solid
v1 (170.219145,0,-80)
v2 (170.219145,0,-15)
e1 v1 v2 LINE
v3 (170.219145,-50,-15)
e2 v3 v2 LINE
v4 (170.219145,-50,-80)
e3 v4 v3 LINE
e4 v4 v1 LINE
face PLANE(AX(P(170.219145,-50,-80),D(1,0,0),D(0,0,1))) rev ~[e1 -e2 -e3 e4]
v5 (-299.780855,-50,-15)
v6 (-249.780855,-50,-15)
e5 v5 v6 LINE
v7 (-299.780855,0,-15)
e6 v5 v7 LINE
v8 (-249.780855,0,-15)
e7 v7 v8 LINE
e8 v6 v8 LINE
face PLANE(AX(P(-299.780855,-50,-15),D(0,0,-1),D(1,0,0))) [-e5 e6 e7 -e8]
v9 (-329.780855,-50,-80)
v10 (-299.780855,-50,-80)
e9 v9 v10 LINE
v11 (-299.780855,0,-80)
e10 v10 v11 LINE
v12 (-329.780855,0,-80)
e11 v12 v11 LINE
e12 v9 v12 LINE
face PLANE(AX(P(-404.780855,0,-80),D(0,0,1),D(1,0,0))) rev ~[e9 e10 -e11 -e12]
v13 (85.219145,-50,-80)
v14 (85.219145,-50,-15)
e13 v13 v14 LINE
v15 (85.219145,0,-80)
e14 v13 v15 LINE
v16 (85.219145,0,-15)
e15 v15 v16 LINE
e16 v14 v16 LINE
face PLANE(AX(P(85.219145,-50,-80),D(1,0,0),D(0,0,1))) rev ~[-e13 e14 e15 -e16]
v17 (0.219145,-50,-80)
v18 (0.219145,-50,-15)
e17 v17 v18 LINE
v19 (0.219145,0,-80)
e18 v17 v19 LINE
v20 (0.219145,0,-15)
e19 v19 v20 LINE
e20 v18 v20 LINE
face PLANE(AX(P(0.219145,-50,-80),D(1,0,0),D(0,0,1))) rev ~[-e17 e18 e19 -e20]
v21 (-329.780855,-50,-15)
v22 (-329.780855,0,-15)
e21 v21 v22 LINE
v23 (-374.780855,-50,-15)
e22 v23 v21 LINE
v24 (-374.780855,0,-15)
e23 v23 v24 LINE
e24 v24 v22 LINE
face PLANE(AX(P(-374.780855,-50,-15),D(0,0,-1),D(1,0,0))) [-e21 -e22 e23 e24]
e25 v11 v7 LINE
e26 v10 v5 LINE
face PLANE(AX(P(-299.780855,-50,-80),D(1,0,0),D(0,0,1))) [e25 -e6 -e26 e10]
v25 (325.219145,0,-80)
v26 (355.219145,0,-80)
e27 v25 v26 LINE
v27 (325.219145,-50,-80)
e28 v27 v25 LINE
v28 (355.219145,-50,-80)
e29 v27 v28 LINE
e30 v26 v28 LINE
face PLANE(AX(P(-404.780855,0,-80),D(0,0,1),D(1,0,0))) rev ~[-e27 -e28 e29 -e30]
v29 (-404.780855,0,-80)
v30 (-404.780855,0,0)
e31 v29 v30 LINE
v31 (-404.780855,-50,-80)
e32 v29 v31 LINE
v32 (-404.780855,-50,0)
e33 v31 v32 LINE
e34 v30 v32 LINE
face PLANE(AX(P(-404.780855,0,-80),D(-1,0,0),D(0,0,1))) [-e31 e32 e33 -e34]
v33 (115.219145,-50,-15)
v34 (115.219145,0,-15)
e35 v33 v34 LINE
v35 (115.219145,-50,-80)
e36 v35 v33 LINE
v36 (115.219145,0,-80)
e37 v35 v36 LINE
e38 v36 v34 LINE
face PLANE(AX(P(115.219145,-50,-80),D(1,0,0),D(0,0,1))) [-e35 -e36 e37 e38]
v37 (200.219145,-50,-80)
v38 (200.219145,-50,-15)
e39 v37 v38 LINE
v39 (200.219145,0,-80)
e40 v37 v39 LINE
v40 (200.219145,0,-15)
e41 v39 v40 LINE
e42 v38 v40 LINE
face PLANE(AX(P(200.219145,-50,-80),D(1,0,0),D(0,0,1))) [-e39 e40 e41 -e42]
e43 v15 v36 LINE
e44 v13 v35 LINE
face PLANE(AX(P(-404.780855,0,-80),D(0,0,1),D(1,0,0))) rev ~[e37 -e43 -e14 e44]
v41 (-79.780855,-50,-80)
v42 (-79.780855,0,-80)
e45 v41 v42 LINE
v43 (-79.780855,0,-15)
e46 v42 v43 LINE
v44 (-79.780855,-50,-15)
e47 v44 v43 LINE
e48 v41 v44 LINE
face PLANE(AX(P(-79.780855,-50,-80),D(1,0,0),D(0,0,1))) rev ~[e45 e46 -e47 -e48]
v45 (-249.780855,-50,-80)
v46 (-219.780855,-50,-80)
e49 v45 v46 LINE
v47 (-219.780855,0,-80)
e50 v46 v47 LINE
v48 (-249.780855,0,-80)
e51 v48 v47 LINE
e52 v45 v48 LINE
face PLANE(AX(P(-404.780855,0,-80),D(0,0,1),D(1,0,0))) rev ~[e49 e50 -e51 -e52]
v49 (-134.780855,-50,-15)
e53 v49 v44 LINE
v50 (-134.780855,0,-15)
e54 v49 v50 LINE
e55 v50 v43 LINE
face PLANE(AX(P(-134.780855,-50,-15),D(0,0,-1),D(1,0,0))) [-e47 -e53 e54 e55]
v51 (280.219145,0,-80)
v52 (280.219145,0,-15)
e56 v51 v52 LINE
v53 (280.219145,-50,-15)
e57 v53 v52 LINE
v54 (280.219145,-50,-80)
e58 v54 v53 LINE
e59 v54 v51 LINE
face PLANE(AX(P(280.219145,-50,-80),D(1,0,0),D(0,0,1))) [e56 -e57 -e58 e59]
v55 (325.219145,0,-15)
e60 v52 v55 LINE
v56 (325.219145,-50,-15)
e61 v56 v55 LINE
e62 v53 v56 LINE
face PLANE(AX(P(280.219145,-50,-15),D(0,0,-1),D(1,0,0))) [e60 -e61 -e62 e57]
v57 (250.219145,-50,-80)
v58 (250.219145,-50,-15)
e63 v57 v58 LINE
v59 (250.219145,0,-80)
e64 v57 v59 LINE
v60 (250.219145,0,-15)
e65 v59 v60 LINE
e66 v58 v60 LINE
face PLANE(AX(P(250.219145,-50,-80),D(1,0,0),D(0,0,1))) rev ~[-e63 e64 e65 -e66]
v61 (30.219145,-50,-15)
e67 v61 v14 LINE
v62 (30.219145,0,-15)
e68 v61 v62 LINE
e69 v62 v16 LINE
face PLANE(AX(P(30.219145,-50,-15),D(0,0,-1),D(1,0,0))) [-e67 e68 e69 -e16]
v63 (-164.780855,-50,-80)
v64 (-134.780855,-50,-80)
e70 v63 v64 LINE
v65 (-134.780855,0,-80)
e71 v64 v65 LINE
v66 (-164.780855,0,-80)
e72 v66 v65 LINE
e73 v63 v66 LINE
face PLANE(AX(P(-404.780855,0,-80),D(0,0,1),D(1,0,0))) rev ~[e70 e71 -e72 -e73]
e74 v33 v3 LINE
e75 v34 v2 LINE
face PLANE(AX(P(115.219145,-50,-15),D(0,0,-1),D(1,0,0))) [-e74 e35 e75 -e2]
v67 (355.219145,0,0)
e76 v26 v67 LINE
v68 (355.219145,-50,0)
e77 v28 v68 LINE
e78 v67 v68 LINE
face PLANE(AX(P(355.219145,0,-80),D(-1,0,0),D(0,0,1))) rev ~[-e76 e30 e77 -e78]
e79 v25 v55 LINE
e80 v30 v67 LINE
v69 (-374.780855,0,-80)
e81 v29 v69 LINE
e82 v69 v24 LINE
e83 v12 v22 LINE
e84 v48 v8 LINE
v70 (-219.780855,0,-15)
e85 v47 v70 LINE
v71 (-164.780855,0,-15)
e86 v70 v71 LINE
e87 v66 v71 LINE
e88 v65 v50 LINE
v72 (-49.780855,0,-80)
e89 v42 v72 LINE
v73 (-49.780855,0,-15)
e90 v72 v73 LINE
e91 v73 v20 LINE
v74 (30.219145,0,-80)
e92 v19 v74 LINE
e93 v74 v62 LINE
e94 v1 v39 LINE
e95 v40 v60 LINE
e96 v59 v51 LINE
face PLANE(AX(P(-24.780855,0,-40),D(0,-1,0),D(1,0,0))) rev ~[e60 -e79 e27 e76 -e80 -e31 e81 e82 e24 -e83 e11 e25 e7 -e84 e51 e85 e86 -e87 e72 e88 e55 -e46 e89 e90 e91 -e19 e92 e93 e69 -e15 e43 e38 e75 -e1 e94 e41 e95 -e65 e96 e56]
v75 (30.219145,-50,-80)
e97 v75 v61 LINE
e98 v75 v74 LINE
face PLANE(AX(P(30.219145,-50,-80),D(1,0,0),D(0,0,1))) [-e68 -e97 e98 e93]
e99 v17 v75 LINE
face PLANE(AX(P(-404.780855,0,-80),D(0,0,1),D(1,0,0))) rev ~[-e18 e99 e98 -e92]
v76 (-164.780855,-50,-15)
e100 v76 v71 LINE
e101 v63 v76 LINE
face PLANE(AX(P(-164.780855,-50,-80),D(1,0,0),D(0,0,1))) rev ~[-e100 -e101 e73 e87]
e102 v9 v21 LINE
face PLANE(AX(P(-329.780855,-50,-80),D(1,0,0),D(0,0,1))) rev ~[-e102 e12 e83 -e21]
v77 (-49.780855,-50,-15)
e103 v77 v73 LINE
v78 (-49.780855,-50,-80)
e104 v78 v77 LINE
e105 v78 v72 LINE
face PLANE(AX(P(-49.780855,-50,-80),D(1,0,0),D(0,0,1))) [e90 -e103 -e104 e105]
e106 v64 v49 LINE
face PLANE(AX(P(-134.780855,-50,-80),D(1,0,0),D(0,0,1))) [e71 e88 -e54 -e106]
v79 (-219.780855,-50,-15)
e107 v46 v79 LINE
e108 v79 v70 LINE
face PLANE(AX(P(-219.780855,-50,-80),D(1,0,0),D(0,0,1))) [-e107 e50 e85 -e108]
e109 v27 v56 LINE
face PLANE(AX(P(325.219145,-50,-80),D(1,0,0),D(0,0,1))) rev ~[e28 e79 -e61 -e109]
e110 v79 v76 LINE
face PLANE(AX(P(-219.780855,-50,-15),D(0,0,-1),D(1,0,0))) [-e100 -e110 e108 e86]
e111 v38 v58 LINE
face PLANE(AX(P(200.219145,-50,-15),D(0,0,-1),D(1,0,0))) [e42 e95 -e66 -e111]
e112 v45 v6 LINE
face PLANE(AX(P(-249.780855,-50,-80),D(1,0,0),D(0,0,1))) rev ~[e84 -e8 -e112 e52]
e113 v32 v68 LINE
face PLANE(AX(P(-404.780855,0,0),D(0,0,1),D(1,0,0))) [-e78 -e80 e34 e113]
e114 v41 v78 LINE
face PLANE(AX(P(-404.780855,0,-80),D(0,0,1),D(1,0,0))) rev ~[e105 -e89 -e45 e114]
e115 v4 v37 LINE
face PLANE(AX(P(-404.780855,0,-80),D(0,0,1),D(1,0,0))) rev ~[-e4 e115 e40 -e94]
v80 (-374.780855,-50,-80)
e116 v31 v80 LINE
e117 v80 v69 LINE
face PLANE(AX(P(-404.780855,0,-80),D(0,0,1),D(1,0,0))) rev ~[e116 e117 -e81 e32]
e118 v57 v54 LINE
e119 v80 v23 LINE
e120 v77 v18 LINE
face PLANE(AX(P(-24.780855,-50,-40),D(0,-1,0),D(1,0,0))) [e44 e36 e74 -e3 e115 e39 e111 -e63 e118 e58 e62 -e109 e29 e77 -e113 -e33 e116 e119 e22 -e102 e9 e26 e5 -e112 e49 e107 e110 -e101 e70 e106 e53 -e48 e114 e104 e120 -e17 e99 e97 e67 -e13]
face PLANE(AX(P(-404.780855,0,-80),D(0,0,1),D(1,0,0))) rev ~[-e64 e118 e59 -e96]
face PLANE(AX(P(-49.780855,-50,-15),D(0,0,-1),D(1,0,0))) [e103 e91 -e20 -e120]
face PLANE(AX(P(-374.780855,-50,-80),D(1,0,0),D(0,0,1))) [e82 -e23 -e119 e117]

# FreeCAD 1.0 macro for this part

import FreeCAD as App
import Part
import Sketcher

doc = App.newDocument("Part")
body = doc.addObject("PartDesign::Body", "Body")

sketch1 = body.newObject("Sketcher::SketchObject", "Sketch")
sketch1.AttachmentSupport = (doc.getObject("XZ_Plane"), [""])
sketch1.MapMode = "FlatFace"
sketch1.addGeometry([
    Part.LineSegment(App.Vector(-405, 0, 0), App.Vector(-405, -80, 0)),
    Part.LineSegment(App.Vector(-405, -80, 0), App.Vector(355, -80, 0)),
    Part.LineSegment(App.Vector(355, -80, 0), App.Vector(355, 0, 0)),
    Part.LineSegment(App.Vector(355, 0, 0), App.Vector(-405, 0, 0)),
], False)
sketch1.addConstraint([
    Sketcher.Constraint("Coincident", 0, 2, 1, 1),
    Sketcher.Constraint("Coincident", 1, 2, 2, 1),
    Sketcher.Constraint("Coincident", 2, 2, 3, 1),
    Sketcher.Constraint("Coincident", 3, 2, 0, 1),
    Sketcher.Constraint("Vertical", 0),
    Sketcher.Constraint("Horizontal", 1),
    Sketcher.Constraint("Vertical", 2),
    Sketcher.Constraint("Horizontal", 3),
    Sketcher.Constraint("PointOnObject", 2, 2, -1),
    Sketcher.Constraint("DistanceX", 1, 1, 1, 2, 760.0),
    Sketcher.Constraint("DistanceY", 0, 2, 0, 1, 80.0),
    Sketcher.Constraint("DistanceX", 0, 2, -1, 1, 404.780855),
])
pad1 = body.newObject("PartDesign::Pad", "Pad")
pad1.Profile = sketch1
pad1.Length = 50

sketch2 = body.newObject("Sketcher::SketchObject", "Sketch001")
sketch2.AttachmentSupport = (doc.getObject("XZ_Plane"), [""])
sketch2.MapMode = "FlatFace"
sketch2.AttachmentOffset = App.Placement(App.Vector(0, 0, 50), App.Rotation())
sketch2.addGeometry([
    Part.LineSegment(App.Vector(-375, -15, 0), App.Vector(-375, -80, 0)),
    Part.LineSegment(App.Vector(-375, -80, 0), App.Vector(-330, -80, 0)),
    Part.LineSegment(App.Vector(-330, -80, 0), App.Vector(-330, -15, 0)),
    Part.LineSegment(App.Vector(-330, -15, 0), App.Vector(-375, -15, 0)),
    Part.LineSegment(App.Vector(-300, -15, 0), App.Vector(-300, -80, 0)),
    Part.LineSegment(App.Vector(-300, -80, 0), App.Vector(-250, -80, 0)),
    Part.LineSegment(App.Vector(-250, -80, 0), App.Vector(-250, -15, 0)),
    Part.LineSegment(App.Vector(-250, -15, 0), App.Vector(-300, -15, 0)),
    Part.LineSegment(App.Vector(-220, -15, 0), App.Vector(-220, -80, 0)),
    Part.LineSegment(App.Vector(-220, -80, 0), App.Vector(-165, -80, 0)),
    Part.LineSegment(App.Vector(-165, -80, 0), App.Vector(-165, -15, 0)),
    Part.LineSegment(App.Vector(-165, -15, 0), App.Vector(-220, -15, 0)),
    Part.LineSegment(App.Vector(-135, -15, 0), App.Vector(-135, -80, 0)),
    Part.LineSegment(App.Vector(-135, -80, 0), App.Vector(-80, -80, 0)),
    Part.LineSegment(App.Vector(-80, -80, 0), App.Vector(-80, -15, 0)),
    Part.LineSegment(App.Vector(-80, -15, 0), App.Vector(-135, -15, 0)),
    Part.LineSegment(App.Vector(-50, -15, 0), App.Vector(-50, -80, 0)),
    Part.LineSegment(App.Vector(-50, -80, 0), App.Vector(0, -80, 0)),
    Part.LineSegment(App.Vector(0, -80, 0), App.Vector(0, -15, 0)),
    Part.LineSegment(App.Vector(0, -15, 0), App.Vector(-50, -15, 0)),
    Part.LineSegment(App.Vector(30, -15, 0), App.Vector(30, -80, 0)),
    Part.LineSegment(App.Vector(30, -80, 0), App.Vector(85, -80, 0)),
    Part.LineSegment(App.Vector(85, -80, 0), App.Vector(85, -15, 0)),
    Part.LineSegment(App.Vector(85, -15, 0), App.Vector(30, -15, 0)),
    Part.LineSegment(App.Vector(115, -15, 0), App.Vector(115, -80, 0)),
    Part.LineSegment(App.Vector(115, -80, 0), App.Vector(170, -80, 0)),
    Part.LineSegment(App.Vector(170, -80, 0), App.Vector(170, -15, 0)),
    Part.LineSegment(App.Vector(170, -15, 0), App.Vector(115, -15, 0)),
    Part.LineSegment(App.Vector(200, -15, 0), App.Vector(200, -80, 0)),
    Part.LineSegment(App.Vector(200, -80, 0), App.Vector(250, -80, 0)),
    Part.LineSegment(App.Vector(250, -80, 0), App.Vector(250, -15, 0)),
    Part.LineSegment(App.Vector(250, -15, 0), App.Vector(200, -15, 0)),
    Part.LineSegment(App.Vector(280, -15, 0), App.Vector(280, -80, 0)),
    Part.LineSegment(App.Vector(280, -80, 0), App.Vector(325, -80, 0)),
    Part.LineSegment(App.Vector(325, -80, 0), App.Vector(325, -15, 0)),
    Part.LineSegment(App.Vector(325, -15, 0), App.Vector(280, -15, 0)),
], False)
sketch2.addConstraint([
    Sketcher.Constraint("Coincident", 0, 2, 1, 1),
    Sketcher.Constraint("Coincident", 1, 2, 2, 1),
    Sketcher.Constraint("Coincident", 2, 2, 3, 1),
    Sketcher.Constraint("Coincident", 3, 2, 0, 1),
    Sketcher.Constraint("Coincident", 4, 2, 5, 1),
    Sketcher.Constraint("Coincident", 5, 2, 6, 1),
    Sketcher.Constraint("Coincident", 6, 2, 7, 1),
    Sketcher.Constraint("Coincident", 7, 2, 4, 1),
    Sketcher.Constraint("Coincident", 8, 2, 9, 1),
    Sketcher.Constraint("Coincident", 9, 2, 10, 1),
    Sketcher.Constraint("Coincident", 10, 2, 11, 1),
    Sketcher.Constraint("Coincident", 11, 2, 8, 1),
    Sketcher.Constraint("Coincident", 12, 2, 13, 1),
    Sketcher.Constraint("Coincident", 13, 2, 14, 1),
    Sketcher.Constraint("Coincident", 14, 2, 15, 1),
    Sketcher.Constraint("Coincident", 15, 2, 12, 1),
    Sketcher.Constraint("Coincident", 16, 2, 17, 1),
    Sketcher.Constraint("Coincident", 17, 2, 18, 1),
    Sketcher.Constraint("Coincident", 18, 2, 19, 1),
    Sketcher.Constraint("Coincident", 19, 2, 16, 1),
    Sketcher.Constraint("Coincident", 20, 2, 21, 1),
    Sketcher.Constraint("Coincident", 21, 2, 22, 1),
    Sketcher.Constraint("Coincident", 22, 2, 23, 1),
    Sketcher.Constraint("Coincident", 23, 2, 20, 1),
    Sketcher.Constraint("Coincident", 24, 2, 25, 1),
    Sketcher.Constraint("Coincident", 25, 2, 26, 1),
    Sketcher.Constraint("Coincident", 26, 2, 27, 1),
    Sketcher.Constraint("Coincident", 27, 2, 24, 1),
    Sketcher.Constraint("Coincident", 28, 2, 29, 1),
    Sketcher.Constraint("Coincident", 29, 2, 30, 1),
    Sketcher.Constraint("Coincident", 30, 2, 31, 1),
    Sketcher.Constraint("Coincident", 31, 2, 28, 1),
    Sketcher.Constraint("Coincident", 32, 2, 33, 1),
    Sketcher.Constraint("Coincident", 33, 2, 34, 1),
    Sketcher.Constraint("Coincident", 34, 2, 35, 1),
    Sketcher.Constraint("Coincident", 35, 2, 32, 1),
    Sketcher.Constraint("Vertical", 0),
    Sketcher.Constraint("Horizontal", 1),
    Sketcher.Constraint("Vertical", 2),
    Sketcher.Constraint("Horizontal", 3),
    Sketcher.Constraint("Vertical", 4),
    Sketcher.Constraint("Horizontal", 5),
    Sketcher.Constraint("Vertical", 6),
    Sketcher.Constraint("Horizontal", 7),
    Sketcher.Constraint("Vertical", 8),
    Sketcher.Constraint("Horizontal", 9),
    Sketcher.Constraint("Vertical", 10),
    Sketcher.Constraint("Horizontal", 11),
    Sketcher.Constraint("Vertical", 12),
    Sketcher.Constraint("Horizontal", 13),
    Sketcher.Constraint("Vertical", 14),
    Sketcher.Constraint("Horizontal", 15),
    Sketcher.Constraint("Vertical", 16),
    Sketcher.Constraint("Horizontal", 17),
    Sketcher.Constraint("Vertical", 18),
    Sketcher.Constraint("Horizontal", 19),
    Sketcher.Constraint("Vertical", 20),
    Sketcher.Constraint("Horizontal", 21),
    Sketcher.Constraint("Vertical", 22),
    Sketcher.Constraint("Horizontal", 23),
    Sketcher.Constraint("Vertical", 24),
    Sketcher.Constraint("Horizontal", 25),
    Sketcher.Constraint("Vertical", 26),
    Sketcher.Constraint("Horizontal", 27),
    Sketcher.Constraint("Vertical", 28),
    Sketcher.Constraint("Horizontal", 29),
    Sketcher.Constraint("Vertical", 30),
    Sketcher.Constraint("Horizontal", 31),
    Sketcher.Constraint("Vertical", 32),
    Sketcher.Constraint("Horizontal", 33),
    Sketcher.Constraint("Vertical", 34),
    Sketcher.Constraint("Horizontal", 35),
    Sketcher.Constraint("Horizontal", 1, 2, 4, 2),
    Sketcher.Constraint("Horizontal", 3, 2, 6, 2),
    Sketcher.Constraint("Horizontal", 5, 2, 8, 2),
    Sketcher.Constraint("Horizontal", 7, 2, 10, 2),
    Sketcher.Constraint("Horizontal", 9, 2, 12, 2),
    Sketcher.Constraint("Horizontal", 11, 2, 14, 2),
    Sketcher.Constraint("Horizontal", 13, 2, 16, 2),
    Sketcher.Constraint("Horizontal", 15, 2, 18, 2),
    Sketcher.Constraint("Horizontal", 17, 2, 20, 2),
    Sketcher.Constraint("Horizontal", 19, 2, 22, 2),
    Sketcher.Constraint("Horizontal", 21, 2, 24, 2),
    Sketcher.Constraint("Horizontal", 23, 2, 26, 2),
    Sketcher.Constraint("Horizontal", 25, 2, 28, 2),
    Sketcher.Constraint("Horizontal", 27, 2, 30, 2),
    Sketcher.Constraint("Horizontal", 29, 2, 32, 2),
    Sketcher.Constraint("Horizontal", 31, 2, 34, 2),
    Sketcher.Constraint("Equal", 11, 13),
    Sketcher.Constraint("Equal", 7, 17),
    Sketcher.Constraint("Equal", 15, 21),
    Sketcher.Constraint("Equal", 23, 25),
    Sketcher.Constraint("Equal", 19, 29),
    Sketcher.Constraint("Equal", 3, 33),
    Sketcher.Constraint("DistanceX", 1, 1, 1, 2, 45.0),
    Sketcher.Constraint("DistanceX", 5, 1, 5, 2, 50.0),
    Sketcher.Constraint("DistanceX", 9, 1, 9, 2, 55.0),
    Sketcher.Constraint("DistanceY", 0, 2, 0, 1, 65.0),
    Sketcher.Constraint("DistanceY", 0, 2, -1, 1, 80.0),
    Sketcher.Constraint("DistanceX", 1, 2, 4, 2, 30.0),
    Sketcher.Constraint("DistanceX", 5, 2, 8, 2, 30.0),
    Sketcher.Constraint("DistanceX", 9, 2, 12, 2, 30.0),
    Sketcher.Constraint("DistanceX", 13, 2, 16, 2, 30.0),
    Sketcher.Constraint("DistanceX", 17, 2, 20, 2, 30.0),
    Sketcher.Constraint("DistanceX", 21, 2, 24, 2, 30.0),
    Sketcher.Constraint("DistanceX", 25, 2, 28, 2, 30.0),
    Sketcher.Constraint("DistanceX", 29, 2, 32, 2, 30.0),
    Sketcher.Constraint("DistanceX", 0, 2, -1, 1, 374.780855),
])
pocket1 = body.newObject("PartDesign::Pocket", "Pocket")
pocket1.Profile = sketch2
pocket1.Length = 50

doc.recompute()
